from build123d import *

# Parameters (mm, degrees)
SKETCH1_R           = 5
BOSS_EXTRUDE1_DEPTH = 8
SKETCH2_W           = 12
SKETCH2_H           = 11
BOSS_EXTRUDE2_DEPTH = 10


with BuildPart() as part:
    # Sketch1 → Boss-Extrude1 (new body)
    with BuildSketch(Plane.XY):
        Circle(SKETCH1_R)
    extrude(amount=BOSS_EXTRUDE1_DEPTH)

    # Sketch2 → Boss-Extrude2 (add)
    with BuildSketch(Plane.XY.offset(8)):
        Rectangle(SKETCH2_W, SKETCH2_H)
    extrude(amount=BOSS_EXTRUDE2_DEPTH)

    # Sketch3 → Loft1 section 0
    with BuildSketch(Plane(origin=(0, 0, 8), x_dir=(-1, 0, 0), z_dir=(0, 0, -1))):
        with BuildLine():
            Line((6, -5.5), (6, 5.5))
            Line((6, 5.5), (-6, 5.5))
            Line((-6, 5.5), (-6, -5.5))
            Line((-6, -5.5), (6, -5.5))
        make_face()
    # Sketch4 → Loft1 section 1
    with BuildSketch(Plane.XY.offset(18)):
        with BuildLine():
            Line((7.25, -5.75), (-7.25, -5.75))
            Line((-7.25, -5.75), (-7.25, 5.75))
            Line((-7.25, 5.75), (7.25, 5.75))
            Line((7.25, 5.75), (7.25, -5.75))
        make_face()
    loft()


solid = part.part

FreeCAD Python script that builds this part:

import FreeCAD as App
import Part
import Sketcher

V = App.Vector
Q = App.Units.Quantity


def add_polygon(sketch, points):
    """Adds a closed chain of lines whose ends are joined by coincident constraints."""
    first, n = sketch.GeometryCount, len(points)
    for a, b in zip(points, points[1:] + points[:1]):
        sketch.addGeometry(Part.LineSegment(App.Vector(*a, 0), App.Vector(*b, 0)), False)
    for i in range(n):
        sketch.addConstraint(Sketcher.Constraint("Coincident", first + i, 2, first + (i + 1) % n, 1))

doc = App.newDocument("Part")
body = doc.addObject("PartDesign::Body", "Body")

sketch1 = body.newObject("Sketcher::SketchObject", "Sketch")
sketch1.AttachmentSupport = (doc.getObject("XY_Plane"), [""])
sketch1.MapMode = "FlatFace"
sketch1.addGeometry(Part.Circle(V(0, 0, 0), V(0, 0, 1), 5), False)
sketch1.addConstraint(Sketcher.Constraint("Coincident", 0, 3, -1, 1))
sketch1.addConstraint(Sketcher.Constraint("Diameter", 0, Q("10 mm")))
pad1 = body.newObject("PartDesign::Pad", "Pad")
pad1.Profile = sketch1
pad1.Length = 8

sketch2 = body.newObject("Sketcher::SketchObject", "Sketch001")
sketch2.AttachmentSupport = (doc.getObject("XY_Plane"), [""])
sketch2.MapMode = "FlatFace"
sketch2.AttachmentOffset = App.Placement(V(0, 0, 8), App.Rotation())
add_polygon(sketch2, [(-6, 6), (-6, -6), (6, -6), (6, 6)])
sketch2.addConstraint(Sketcher.Constraint("Vertical", 0))
sketch2.addConstraint(Sketcher.Constraint("Horizontal", 1))
sketch2.addConstraint(Sketcher.Constraint("Vertical", 2))
sketch2.addConstraint(Sketcher.Constraint("Horizontal", 3))
sketch2.addConstraint(Sketcher.Constraint("Symmetric", 0, 2, 2, 2, -1, 1))
sketch2.addConstraint(Sketcher.Constraint("DistanceX", 1, 1, 1, 2, Q("12 mm")))
sketch2.addConstraint(Sketcher.Constraint("DistanceY", 0, 2, 0, 1, Q("11 mm")))
pad2 = body.newObject("PartDesign::Pad", "Pad001")
pad2.Profile = sketch2
pad2.Length = 10

sketch3 = body.newObject("Sketcher::SketchObject", "Sketch002")
sketch3.AttachmentSupport = (doc.getObject("XY_Plane"), [""])
sketch3.MapMode = "FlatFace"
sketch3.AttachmentOffset = App.Placement(V(0, 0, 8), App.Rotation())
add_polygon(sketch3, [(-6, -6), (-6, 6), (6, 6), (6, -6)])
sketch3.addConstraint(Sketcher.Constraint("Vertical", 0))
sketch3.addConstraint(Sketcher.Constraint("Horizontal", 1))
sketch3.addConstraint(Sketcher.Constraint("Vertical", 2))
sketch3.addConstraint(Sketcher.Constraint("Horizontal", 3))
sketch3.addConstraint(Sketcher.Constraint("Symmetric", 0, 2, 2, 2, -1, 1))
sketch3.addConstraint(Sketcher.Constraint("DistanceX", 1, 1, 1, 2, Q("12 mm")))
sketch3.addConstraint(Sketcher.Constraint("DistanceY", 0, 1, 0, 2, Q("11 mm")))

sketch4 = body.newObject("Sketcher::SketchObject", "Sketch003")
sketch4.AttachmentSupport = (doc.getObject("XY_Plane"), [""])
sketch4.MapMode = "FlatFace"
sketch4.AttachmentOffset = App.Placement(V(0, 0, 18), App.Rotation())
add_polygon(sketch4, [(-7, -6), (7, -6), (7, 6), (-7, 6)])
sketch4.addConstraint(Sketcher.Constraint("Horizontal", 0))
sketch4.addConstraint(Sketcher.Constraint("Vertical", 1))
sketch4.addConstraint(Sketcher.Constraint("Horizontal", 2))
sketch4.addConstraint(Sketcher.Constraint("Vertical", 3))
sketch4.addConstraint(Sketcher.Constraint("Symmetric", 0, 2, 2, 2, -1, 1))
sketch4.addConstraint(Sketcher.Constraint("DistanceX", 0, 1, 0, 2, Q("14.5 mm")))
sketch4.addConstraint(Sketcher.Constraint("DistanceY", 1, 1, 1, 2, Q("11.5 mm")))

additiveloft = body.newObject("PartDesign::AdditiveLoft", "AdditiveLoft")
additiveloft.Profile = sketch3
additiveloft.Sections = [sketch4]

doc.recompute()
